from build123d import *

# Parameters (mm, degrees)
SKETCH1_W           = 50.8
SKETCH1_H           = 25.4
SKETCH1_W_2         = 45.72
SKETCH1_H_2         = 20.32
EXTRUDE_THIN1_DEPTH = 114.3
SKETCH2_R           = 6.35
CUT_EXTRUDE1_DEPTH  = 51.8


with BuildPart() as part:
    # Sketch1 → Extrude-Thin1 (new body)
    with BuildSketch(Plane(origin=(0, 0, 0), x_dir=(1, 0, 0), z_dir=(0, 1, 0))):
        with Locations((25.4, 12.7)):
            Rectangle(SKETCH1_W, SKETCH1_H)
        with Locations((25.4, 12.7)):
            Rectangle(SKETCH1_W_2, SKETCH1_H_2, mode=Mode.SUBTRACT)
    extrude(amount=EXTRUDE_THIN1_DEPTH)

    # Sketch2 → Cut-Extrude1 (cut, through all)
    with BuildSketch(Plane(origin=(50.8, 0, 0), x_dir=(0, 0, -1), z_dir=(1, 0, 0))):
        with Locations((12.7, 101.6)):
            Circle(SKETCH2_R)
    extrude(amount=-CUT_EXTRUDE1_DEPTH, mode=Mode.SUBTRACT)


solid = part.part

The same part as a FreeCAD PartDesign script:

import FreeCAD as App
import Part
import Sketcher
Q = App.Units.Quantity


def add_polygon(sketch, points):
    """Adds a closed chain of lines whose ends are joined by coincident constraints."""
    first, n = sketch.GeometryCount, len(points)
    for a, b in zip(points, points[1:] + points[:1]):
        sketch.addGeometry(Part.LineSegment(App.Vector(*a, 0), App.Vector(*b, 0)), False)
    for i in range(n):
        sketch.addConstraint(Sketcher.Constraint("Coincident", first + i, 2, first + (i + 1) % n, 1))

doc = App.newDocument("Part")
body = doc.addObject("PartDesign::Body", "Body")

sketch1 = body.newObject("Sketcher::SketchObject", "Sketch")
sketch1.AttachmentSupport = (doc.getObject("XZ_Plane"), [""])
sketch1.MapMode = "FlatFace"
add_polygon(sketch1, [(0, -25), (0, 0), (51, 0), (51, -25)])
add_polygon(sketch1, [(48, -3), (3, -3), (3, -23), (48, -23)])
sketch1.addConstraint(Sketcher.Constraint("Vertical", 0))
sketch1.addConstraint(Sketcher.Constraint("Horizontal", 1))
sketch1.addConstraint(Sketcher.Constraint("Vertical", 2))
sketch1.addConstraint(Sketcher.Constraint("Horizontal", 3))
sketch1.addConstraint(Sketcher.Constraint("Horizontal", 4))
sketch1.addConstraint(Sketcher.Constraint("Vertical", 5))
sketch1.addConstraint(Sketcher.Constraint("Horizontal", 6))
sketch1.addConstraint(Sketcher.Constraint("Vertical", 7))
sketch1.addConstraint(Sketcher.Constraint("Coincident", 0, 2, -1, 1))
sketch1.addConstraint(Sketcher.Constraint("DistanceX", 1, 1, 1, 2, Q("2 in")))
sketch1.addConstraint(Sketcher.Constraint("DistanceY", 0, 1, 0, 2, Q("1 in")))
sketch1.addConstraint(Sketcher.Constraint("DistanceX", 4, 2, 4, 1, Q("1.8 in")))
sketch1.addConstraint(Sketcher.Constraint("DistanceY", 5, 2, 5, 1, Q("0.8 in")))
sketch1.addConstraint(Sketcher.Constraint("DistanceX", -1, 1, 4, 2, Q("0.1 in")))
sketch1.addConstraint(Sketcher.Constraint("DistanceY", 4, 2, -1, 1, Q("0.1 in")))
pad1 = body.newObject("PartDesign::Pad", "Pad")
pad1.Profile = sketch1
pad1.Length = Q("4.5 in")
pad1.Reversed = True

sketch2 = body.newObject("Sketcher::SketchObject", "Sketch001")
sketch2.AttachmentSupport = (doc.getObject("YZ_Plane"), [""])
sketch2.MapMode = "FlatFace"
sketch2.AttachmentOffset = App.Placement(App.Vector(0, 0, 2 * 25.4), App.Rotation())
sketch2.addGeometry(Part.Circle(App.Vector(102, -13, 0), App.Vector(0, 0, 1), 6), False)
sketch2.addConstraint(Sketcher.Constraint("Diameter", 0, Q("0.5 in")))
sketch2.addConstraint(Sketcher.Constraint("DistanceX", -1, 1, 0, 3, Q("4 in")))
sketch2.addConstraint(Sketcher.Constraint("DistanceY", 0, 3, -1, 1, Q("0.5 in")))
pocket1 = body.newObject("PartDesign::Pocket", "Pocket")
pocket1.Profile = sketch2
pocket1.Type = "ThroughAll"

doc.recompute()
